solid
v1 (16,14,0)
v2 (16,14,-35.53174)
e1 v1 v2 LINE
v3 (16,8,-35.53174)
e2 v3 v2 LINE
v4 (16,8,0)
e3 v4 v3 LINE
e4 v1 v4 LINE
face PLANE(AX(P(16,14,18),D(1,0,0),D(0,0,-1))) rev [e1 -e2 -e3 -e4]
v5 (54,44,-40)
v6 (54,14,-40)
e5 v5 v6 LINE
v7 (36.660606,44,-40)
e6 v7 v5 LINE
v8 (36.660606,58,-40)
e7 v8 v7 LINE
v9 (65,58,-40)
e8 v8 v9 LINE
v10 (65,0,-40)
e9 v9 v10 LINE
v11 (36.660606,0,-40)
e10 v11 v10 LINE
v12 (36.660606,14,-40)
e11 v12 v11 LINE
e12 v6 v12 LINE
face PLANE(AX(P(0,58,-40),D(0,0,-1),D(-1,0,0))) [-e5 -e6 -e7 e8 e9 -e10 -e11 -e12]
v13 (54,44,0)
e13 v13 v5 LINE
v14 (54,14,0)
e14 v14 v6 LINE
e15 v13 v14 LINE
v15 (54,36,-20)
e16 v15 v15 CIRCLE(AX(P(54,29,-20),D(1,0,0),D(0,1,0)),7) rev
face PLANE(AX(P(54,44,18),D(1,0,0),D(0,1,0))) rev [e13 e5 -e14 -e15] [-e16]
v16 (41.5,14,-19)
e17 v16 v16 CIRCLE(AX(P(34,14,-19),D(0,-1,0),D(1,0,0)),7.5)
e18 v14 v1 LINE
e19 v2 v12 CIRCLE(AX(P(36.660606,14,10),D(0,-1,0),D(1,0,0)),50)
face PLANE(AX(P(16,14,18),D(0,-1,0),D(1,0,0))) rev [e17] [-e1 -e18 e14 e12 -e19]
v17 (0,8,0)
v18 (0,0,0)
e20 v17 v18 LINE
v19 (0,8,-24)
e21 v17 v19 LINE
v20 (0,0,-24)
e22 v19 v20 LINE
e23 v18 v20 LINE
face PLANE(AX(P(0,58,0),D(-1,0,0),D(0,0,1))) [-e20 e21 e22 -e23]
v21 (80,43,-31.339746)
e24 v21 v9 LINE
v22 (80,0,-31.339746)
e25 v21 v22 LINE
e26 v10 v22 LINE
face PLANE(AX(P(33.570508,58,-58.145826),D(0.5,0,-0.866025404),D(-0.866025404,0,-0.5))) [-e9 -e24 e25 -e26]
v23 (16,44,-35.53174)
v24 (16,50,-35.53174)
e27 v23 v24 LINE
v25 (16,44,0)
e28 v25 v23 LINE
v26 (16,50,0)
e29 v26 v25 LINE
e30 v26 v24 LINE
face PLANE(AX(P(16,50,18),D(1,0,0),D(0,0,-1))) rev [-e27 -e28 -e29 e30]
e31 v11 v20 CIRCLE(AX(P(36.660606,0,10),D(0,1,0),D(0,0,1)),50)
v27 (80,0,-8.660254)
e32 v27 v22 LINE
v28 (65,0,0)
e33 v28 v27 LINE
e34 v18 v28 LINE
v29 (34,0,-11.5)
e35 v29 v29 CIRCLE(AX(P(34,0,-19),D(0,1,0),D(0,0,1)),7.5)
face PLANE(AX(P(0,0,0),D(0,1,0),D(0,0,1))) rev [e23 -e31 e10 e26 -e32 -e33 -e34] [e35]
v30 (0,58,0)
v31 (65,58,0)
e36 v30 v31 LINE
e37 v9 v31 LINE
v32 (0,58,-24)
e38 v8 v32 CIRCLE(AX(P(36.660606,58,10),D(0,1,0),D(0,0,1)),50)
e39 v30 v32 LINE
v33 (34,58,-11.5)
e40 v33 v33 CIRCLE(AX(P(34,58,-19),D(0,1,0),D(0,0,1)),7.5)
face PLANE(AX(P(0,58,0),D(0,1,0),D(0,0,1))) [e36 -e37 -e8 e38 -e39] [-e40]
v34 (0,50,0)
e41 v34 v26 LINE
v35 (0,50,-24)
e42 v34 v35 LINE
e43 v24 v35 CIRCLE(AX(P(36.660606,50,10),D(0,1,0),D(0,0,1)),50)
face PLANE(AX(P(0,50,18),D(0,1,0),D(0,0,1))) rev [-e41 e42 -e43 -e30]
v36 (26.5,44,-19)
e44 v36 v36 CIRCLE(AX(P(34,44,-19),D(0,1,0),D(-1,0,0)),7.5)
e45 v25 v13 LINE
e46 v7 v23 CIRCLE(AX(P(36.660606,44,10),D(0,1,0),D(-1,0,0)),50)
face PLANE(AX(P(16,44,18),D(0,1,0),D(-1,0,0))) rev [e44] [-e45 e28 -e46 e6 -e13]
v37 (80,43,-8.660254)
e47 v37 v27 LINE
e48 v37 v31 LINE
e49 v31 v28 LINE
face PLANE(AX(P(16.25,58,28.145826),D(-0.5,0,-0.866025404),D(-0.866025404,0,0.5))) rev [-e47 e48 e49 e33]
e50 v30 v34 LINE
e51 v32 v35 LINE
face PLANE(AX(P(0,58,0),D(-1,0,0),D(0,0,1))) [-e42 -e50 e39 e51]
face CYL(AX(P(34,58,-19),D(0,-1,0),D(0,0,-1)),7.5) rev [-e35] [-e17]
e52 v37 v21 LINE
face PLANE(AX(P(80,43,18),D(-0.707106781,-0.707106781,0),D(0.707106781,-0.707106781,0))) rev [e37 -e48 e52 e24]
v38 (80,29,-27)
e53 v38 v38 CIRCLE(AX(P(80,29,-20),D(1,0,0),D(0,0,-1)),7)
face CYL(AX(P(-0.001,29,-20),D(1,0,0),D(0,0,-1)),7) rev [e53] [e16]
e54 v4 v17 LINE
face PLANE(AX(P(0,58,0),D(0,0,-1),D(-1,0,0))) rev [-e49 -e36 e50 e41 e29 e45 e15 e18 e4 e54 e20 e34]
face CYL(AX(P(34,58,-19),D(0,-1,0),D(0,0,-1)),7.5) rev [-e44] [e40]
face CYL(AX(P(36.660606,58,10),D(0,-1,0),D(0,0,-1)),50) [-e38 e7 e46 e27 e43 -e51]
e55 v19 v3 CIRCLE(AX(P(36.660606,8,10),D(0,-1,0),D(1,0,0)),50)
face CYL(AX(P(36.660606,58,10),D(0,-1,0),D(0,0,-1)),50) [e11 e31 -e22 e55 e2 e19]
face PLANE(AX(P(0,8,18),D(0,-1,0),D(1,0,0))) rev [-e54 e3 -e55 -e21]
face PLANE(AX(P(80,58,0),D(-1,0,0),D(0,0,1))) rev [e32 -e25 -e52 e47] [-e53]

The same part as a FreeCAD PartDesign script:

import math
import FreeCAD as App
import Part
import Sketcher

V = App.Vector
Q = App.Units.Quantity

doc = App.newDocument("Part")
body = doc.addObject("PartDesign::Body", "Body")

sketch1 = body.newObject("Sketcher::SketchObject", "Sketch")
sketch1.AttachmentSupport = (doc.getObject("XZ_Plane"), [""])
sketch1.MapMode = "FlatFace"
sketch1.addGeometry([
    Part.LineSegment(V(65, -40, 0), V(36.660606, -40, 0)),
    Part.ArcOfCircle(Part.Circle(V(36.660606, 10, 0), V(0, 0, 1), 50), math.radians(-137.156357), math.radians(-90)),
    Part.LineSegment(V(0, -24, 0), V(0, 0, 0)),
    Part.LineSegment(V(0, 0, 0), V(65, 0, 0)),
    Part.LineSegment(V(65, 0, 0), V(80, -8.660254, 0)),
    Part.LineSegment(V(80, -8.660254, 0), V(80, -31.339746, 0)),
    Part.LineSegment(V(80, -31.339746, 0), V(65, -40, 0)),
    Part.Circle(V(34, -19, 0), V(0, 0, 1), 7.5),
], False)
sketch1.addConstraint([
    Sketcher.Constraint("Tangent", 0, 2, 1, 2),
    Sketcher.Constraint("Coincident", 1, 1, 2, 1),
    Sketcher.Constraint("Coincident", 2, 2, 3, 1),
    Sketcher.Constraint("Coincident", 3, 2, 4, 1),
    Sketcher.Constraint("Coincident", 4, 2, 5, 1),
    Sketcher.Constraint("Coincident", 5, 2, 6, 1),
    Sketcher.Constraint("Coincident", 6, 2, 0, 1),
    Sketcher.Constraint("Horizontal", 0),
    Sketcher.Constraint("Vertical", 2),
    Sketcher.Constraint("Horizontal", 3),
    Sketcher.Constraint("Vertical", 5),
    Sketcher.Constraint("Coincident", 2, 2, -1, 1),
    Sketcher.Constraint("Vertical", 3, 2, 6, 2),
    Sketcher.Constraint("Equal", 4, 6),
    Sketcher.Constraint("Diameter", 7, 15.0),
    Sketcher.Constraint("Radius", 1, 50.0),
    Sketcher.Constraint("DistanceX", 3, 1, 3, 2, 65.0),
    Sketcher.Constraint("DistanceY", 2, 1, 2, 2, 24.0),
    Sketcher.Constraint("Angle", 4, Q("-30 deg")),
    Sketcher.Constraint("DistanceY", -1, 1, 1, 3, 10.0),
    Sketcher.Constraint("DistanceX", -1, 1, 7, 3, 34.0),
    Sketcher.Constraint("DistanceY", 7, 3, -1, 1, 19.0),
    Sketcher.Constraint("DistanceX", -1, 1, 4, 2, 80.0),
])
pad1 = body.newObject("PartDesign::Pad", "Pad")
pad1.Profile = sketch1
pad1.Length = 58
pad1.Reversed = True

sketch2 = body.newObject("Sketcher::SketchObject", "Sketch001")
sketch2.AttachmentSupport = (doc.getObject("XY_Plane"), [""])
sketch2.MapMode = "FlatFace"
sketch2.AttachmentOffset = App.Placement(V(0, 0, -40), App.Rotation())
sketch2.addGeometry([
    Part.LineSegment(V(0, 50, 0), V(16, 50, 0)),
    Part.LineSegment(V(16, 50, 0), V(16, 44, 0)),
    Part.LineSegment(V(16, 44, 0), V(54, 44, 0)),
    Part.LineSegment(V(54, 44, 0), V(54, 14, 0)),
    Part.LineSegment(V(54, 14, 0), V(16, 14, 0)),
    Part.LineSegment(V(16, 14, 0), V(16, 8, 0)),
    Part.LineSegment(V(16, 8, 0), V(0, 8, 0)),
    Part.LineSegment(V(0, 8, 0), V(0, 50, 0)),
], False)
sketch2.addConstraint([
    Sketcher.Constraint("Coincident", 0, 2, 1, 1),
    Sketcher.Constraint("Coincident", 1, 2, 2, 1),
    Sketcher.Constraint("Coincident", 2, 2, 3, 1),
    Sketcher.Constraint("Coincident", 3, 2, 4, 1),
    Sketcher.Constraint("Coincident", 4, 2, 5, 1),
    Sketcher.Constraint("Coincident", 5, 2, 6, 1),
    Sketcher.Constraint("Coincident", 6, 2, 7, 1),
    Sketcher.Constraint("Coincident", 7, 2, 0, 1),
    Sketcher.Constraint("Horizontal", 0),
    Sketcher.Constraint("Vertical", 1),
    Sketcher.Constraint("Horizontal", 2),
    Sketcher.Constraint("Vertical", 3),
    Sketcher.Constraint("Horizontal", 4),
    Sketcher.Constraint("Vertical", 5),
    Sketcher.Constraint("Horizontal", 6),
    Sketcher.Constraint("Vertical", 7),
    Sketcher.Constraint("PointOnObject", 6, 2, -2),
    Sketcher.Constraint("Vertical", 1, 2, 4, 2),
    Sketcher.Constraint("Equal", 1, 5),
    Sketcher.Constraint("DistanceX", 0, 1, 0, 2, 16.0),
    Sketcher.Constraint("DistanceX", 2, 1, 2, 2, 38.0),
    Sketcher.Constraint("DistanceY", 1, 2, 1, 1, 6.0),
    Sketcher.Constraint("DistanceY", 3, 2, 3, 1, 30.0),
    Sketcher.Constraint("DistanceY", -1, 1, 0, 2, 50.0),
])
pocket1 = body.newObject("PartDesign::Pocket", "Pocket")
pocket1.Profile = sketch2
pocket1.Length = 58
pocket1.Reversed = True

sketch3 = body.newObject("Sketcher::SketchObject", "Sketch002")
sketch3.AttachmentSupport = (doc.getObject("XY_Plane"), [""])
sketch3.MapMode = "FlatFace"
sketch3.AttachmentOffset = App.Placement(V(0, 0, -40), App.Rotation())
sketch3.addGeometry([
    Part.LineSegment(V(80, 58, 0), V(80, 43, 0)),
    Part.LineSegment(V(80, 43, 0), V(65, 58, 0)),
    Part.LineSegment(V(65, 58, 0), V(80, 58, 0)),
], False)
sketch3.addConstraint([
    Sketcher.Constraint("Coincident", 0, 2, 1, 1),
    Sketcher.Constraint("Coincident", 1, 2, 2, 1),
    Sketcher.Constraint("Coincident", 2, 2, 0, 1),
    Sketcher.Constraint("Vertical", 0),
    Sketcher.Constraint("Horizontal", 2),
    Sketcher.Constraint("Equal", 2, 0),
    Sketcher.Constraint("DistanceX", 2, 1, 2, 2, 15.0),
    Sketcher.Constraint("DistanceX", -1, 1, 0, 2, 80.0),
    Sketcher.Constraint("DistanceY", -1, 1, 0, 2, 43.0),
])
pocket2 = body.newObject("PartDesign::Pocket", "Pocket001")
pocket2.Profile = sketch3
pocket2.Length = 58
pocket2.Reversed = True

sketch4 = body.newObject("Sketcher::SketchObject", "Sketch003")
sketch4.AttachmentSupport = (doc.getObject("YZ_Plane"), [""])
sketch4.MapMode = "FlatFace"
sketch4.AttachmentOffset = App.Placement(V(0, 0, 80), App.Rotation())
sketch4.addGeometry(Part.Circle(V(29, -20, 0), V(0, 0, 1), 7), False)
sketch4.addConstraint([
    Sketcher.Constraint("Diameter", 0, 14.0),
    Sketcher.Constraint("DistanceX", -1, 1, 0, 3, 29.0),
    Sketcher.Constraint("DistanceY", 0, 3, -1, 1, 20.0),
])
pocket3 = body.newObject("PartDesign::Pocket", "Pocket002")
pocket3.Profile = sketch4
pocket3.Type = "UpToFirst"

doc.recompute()
